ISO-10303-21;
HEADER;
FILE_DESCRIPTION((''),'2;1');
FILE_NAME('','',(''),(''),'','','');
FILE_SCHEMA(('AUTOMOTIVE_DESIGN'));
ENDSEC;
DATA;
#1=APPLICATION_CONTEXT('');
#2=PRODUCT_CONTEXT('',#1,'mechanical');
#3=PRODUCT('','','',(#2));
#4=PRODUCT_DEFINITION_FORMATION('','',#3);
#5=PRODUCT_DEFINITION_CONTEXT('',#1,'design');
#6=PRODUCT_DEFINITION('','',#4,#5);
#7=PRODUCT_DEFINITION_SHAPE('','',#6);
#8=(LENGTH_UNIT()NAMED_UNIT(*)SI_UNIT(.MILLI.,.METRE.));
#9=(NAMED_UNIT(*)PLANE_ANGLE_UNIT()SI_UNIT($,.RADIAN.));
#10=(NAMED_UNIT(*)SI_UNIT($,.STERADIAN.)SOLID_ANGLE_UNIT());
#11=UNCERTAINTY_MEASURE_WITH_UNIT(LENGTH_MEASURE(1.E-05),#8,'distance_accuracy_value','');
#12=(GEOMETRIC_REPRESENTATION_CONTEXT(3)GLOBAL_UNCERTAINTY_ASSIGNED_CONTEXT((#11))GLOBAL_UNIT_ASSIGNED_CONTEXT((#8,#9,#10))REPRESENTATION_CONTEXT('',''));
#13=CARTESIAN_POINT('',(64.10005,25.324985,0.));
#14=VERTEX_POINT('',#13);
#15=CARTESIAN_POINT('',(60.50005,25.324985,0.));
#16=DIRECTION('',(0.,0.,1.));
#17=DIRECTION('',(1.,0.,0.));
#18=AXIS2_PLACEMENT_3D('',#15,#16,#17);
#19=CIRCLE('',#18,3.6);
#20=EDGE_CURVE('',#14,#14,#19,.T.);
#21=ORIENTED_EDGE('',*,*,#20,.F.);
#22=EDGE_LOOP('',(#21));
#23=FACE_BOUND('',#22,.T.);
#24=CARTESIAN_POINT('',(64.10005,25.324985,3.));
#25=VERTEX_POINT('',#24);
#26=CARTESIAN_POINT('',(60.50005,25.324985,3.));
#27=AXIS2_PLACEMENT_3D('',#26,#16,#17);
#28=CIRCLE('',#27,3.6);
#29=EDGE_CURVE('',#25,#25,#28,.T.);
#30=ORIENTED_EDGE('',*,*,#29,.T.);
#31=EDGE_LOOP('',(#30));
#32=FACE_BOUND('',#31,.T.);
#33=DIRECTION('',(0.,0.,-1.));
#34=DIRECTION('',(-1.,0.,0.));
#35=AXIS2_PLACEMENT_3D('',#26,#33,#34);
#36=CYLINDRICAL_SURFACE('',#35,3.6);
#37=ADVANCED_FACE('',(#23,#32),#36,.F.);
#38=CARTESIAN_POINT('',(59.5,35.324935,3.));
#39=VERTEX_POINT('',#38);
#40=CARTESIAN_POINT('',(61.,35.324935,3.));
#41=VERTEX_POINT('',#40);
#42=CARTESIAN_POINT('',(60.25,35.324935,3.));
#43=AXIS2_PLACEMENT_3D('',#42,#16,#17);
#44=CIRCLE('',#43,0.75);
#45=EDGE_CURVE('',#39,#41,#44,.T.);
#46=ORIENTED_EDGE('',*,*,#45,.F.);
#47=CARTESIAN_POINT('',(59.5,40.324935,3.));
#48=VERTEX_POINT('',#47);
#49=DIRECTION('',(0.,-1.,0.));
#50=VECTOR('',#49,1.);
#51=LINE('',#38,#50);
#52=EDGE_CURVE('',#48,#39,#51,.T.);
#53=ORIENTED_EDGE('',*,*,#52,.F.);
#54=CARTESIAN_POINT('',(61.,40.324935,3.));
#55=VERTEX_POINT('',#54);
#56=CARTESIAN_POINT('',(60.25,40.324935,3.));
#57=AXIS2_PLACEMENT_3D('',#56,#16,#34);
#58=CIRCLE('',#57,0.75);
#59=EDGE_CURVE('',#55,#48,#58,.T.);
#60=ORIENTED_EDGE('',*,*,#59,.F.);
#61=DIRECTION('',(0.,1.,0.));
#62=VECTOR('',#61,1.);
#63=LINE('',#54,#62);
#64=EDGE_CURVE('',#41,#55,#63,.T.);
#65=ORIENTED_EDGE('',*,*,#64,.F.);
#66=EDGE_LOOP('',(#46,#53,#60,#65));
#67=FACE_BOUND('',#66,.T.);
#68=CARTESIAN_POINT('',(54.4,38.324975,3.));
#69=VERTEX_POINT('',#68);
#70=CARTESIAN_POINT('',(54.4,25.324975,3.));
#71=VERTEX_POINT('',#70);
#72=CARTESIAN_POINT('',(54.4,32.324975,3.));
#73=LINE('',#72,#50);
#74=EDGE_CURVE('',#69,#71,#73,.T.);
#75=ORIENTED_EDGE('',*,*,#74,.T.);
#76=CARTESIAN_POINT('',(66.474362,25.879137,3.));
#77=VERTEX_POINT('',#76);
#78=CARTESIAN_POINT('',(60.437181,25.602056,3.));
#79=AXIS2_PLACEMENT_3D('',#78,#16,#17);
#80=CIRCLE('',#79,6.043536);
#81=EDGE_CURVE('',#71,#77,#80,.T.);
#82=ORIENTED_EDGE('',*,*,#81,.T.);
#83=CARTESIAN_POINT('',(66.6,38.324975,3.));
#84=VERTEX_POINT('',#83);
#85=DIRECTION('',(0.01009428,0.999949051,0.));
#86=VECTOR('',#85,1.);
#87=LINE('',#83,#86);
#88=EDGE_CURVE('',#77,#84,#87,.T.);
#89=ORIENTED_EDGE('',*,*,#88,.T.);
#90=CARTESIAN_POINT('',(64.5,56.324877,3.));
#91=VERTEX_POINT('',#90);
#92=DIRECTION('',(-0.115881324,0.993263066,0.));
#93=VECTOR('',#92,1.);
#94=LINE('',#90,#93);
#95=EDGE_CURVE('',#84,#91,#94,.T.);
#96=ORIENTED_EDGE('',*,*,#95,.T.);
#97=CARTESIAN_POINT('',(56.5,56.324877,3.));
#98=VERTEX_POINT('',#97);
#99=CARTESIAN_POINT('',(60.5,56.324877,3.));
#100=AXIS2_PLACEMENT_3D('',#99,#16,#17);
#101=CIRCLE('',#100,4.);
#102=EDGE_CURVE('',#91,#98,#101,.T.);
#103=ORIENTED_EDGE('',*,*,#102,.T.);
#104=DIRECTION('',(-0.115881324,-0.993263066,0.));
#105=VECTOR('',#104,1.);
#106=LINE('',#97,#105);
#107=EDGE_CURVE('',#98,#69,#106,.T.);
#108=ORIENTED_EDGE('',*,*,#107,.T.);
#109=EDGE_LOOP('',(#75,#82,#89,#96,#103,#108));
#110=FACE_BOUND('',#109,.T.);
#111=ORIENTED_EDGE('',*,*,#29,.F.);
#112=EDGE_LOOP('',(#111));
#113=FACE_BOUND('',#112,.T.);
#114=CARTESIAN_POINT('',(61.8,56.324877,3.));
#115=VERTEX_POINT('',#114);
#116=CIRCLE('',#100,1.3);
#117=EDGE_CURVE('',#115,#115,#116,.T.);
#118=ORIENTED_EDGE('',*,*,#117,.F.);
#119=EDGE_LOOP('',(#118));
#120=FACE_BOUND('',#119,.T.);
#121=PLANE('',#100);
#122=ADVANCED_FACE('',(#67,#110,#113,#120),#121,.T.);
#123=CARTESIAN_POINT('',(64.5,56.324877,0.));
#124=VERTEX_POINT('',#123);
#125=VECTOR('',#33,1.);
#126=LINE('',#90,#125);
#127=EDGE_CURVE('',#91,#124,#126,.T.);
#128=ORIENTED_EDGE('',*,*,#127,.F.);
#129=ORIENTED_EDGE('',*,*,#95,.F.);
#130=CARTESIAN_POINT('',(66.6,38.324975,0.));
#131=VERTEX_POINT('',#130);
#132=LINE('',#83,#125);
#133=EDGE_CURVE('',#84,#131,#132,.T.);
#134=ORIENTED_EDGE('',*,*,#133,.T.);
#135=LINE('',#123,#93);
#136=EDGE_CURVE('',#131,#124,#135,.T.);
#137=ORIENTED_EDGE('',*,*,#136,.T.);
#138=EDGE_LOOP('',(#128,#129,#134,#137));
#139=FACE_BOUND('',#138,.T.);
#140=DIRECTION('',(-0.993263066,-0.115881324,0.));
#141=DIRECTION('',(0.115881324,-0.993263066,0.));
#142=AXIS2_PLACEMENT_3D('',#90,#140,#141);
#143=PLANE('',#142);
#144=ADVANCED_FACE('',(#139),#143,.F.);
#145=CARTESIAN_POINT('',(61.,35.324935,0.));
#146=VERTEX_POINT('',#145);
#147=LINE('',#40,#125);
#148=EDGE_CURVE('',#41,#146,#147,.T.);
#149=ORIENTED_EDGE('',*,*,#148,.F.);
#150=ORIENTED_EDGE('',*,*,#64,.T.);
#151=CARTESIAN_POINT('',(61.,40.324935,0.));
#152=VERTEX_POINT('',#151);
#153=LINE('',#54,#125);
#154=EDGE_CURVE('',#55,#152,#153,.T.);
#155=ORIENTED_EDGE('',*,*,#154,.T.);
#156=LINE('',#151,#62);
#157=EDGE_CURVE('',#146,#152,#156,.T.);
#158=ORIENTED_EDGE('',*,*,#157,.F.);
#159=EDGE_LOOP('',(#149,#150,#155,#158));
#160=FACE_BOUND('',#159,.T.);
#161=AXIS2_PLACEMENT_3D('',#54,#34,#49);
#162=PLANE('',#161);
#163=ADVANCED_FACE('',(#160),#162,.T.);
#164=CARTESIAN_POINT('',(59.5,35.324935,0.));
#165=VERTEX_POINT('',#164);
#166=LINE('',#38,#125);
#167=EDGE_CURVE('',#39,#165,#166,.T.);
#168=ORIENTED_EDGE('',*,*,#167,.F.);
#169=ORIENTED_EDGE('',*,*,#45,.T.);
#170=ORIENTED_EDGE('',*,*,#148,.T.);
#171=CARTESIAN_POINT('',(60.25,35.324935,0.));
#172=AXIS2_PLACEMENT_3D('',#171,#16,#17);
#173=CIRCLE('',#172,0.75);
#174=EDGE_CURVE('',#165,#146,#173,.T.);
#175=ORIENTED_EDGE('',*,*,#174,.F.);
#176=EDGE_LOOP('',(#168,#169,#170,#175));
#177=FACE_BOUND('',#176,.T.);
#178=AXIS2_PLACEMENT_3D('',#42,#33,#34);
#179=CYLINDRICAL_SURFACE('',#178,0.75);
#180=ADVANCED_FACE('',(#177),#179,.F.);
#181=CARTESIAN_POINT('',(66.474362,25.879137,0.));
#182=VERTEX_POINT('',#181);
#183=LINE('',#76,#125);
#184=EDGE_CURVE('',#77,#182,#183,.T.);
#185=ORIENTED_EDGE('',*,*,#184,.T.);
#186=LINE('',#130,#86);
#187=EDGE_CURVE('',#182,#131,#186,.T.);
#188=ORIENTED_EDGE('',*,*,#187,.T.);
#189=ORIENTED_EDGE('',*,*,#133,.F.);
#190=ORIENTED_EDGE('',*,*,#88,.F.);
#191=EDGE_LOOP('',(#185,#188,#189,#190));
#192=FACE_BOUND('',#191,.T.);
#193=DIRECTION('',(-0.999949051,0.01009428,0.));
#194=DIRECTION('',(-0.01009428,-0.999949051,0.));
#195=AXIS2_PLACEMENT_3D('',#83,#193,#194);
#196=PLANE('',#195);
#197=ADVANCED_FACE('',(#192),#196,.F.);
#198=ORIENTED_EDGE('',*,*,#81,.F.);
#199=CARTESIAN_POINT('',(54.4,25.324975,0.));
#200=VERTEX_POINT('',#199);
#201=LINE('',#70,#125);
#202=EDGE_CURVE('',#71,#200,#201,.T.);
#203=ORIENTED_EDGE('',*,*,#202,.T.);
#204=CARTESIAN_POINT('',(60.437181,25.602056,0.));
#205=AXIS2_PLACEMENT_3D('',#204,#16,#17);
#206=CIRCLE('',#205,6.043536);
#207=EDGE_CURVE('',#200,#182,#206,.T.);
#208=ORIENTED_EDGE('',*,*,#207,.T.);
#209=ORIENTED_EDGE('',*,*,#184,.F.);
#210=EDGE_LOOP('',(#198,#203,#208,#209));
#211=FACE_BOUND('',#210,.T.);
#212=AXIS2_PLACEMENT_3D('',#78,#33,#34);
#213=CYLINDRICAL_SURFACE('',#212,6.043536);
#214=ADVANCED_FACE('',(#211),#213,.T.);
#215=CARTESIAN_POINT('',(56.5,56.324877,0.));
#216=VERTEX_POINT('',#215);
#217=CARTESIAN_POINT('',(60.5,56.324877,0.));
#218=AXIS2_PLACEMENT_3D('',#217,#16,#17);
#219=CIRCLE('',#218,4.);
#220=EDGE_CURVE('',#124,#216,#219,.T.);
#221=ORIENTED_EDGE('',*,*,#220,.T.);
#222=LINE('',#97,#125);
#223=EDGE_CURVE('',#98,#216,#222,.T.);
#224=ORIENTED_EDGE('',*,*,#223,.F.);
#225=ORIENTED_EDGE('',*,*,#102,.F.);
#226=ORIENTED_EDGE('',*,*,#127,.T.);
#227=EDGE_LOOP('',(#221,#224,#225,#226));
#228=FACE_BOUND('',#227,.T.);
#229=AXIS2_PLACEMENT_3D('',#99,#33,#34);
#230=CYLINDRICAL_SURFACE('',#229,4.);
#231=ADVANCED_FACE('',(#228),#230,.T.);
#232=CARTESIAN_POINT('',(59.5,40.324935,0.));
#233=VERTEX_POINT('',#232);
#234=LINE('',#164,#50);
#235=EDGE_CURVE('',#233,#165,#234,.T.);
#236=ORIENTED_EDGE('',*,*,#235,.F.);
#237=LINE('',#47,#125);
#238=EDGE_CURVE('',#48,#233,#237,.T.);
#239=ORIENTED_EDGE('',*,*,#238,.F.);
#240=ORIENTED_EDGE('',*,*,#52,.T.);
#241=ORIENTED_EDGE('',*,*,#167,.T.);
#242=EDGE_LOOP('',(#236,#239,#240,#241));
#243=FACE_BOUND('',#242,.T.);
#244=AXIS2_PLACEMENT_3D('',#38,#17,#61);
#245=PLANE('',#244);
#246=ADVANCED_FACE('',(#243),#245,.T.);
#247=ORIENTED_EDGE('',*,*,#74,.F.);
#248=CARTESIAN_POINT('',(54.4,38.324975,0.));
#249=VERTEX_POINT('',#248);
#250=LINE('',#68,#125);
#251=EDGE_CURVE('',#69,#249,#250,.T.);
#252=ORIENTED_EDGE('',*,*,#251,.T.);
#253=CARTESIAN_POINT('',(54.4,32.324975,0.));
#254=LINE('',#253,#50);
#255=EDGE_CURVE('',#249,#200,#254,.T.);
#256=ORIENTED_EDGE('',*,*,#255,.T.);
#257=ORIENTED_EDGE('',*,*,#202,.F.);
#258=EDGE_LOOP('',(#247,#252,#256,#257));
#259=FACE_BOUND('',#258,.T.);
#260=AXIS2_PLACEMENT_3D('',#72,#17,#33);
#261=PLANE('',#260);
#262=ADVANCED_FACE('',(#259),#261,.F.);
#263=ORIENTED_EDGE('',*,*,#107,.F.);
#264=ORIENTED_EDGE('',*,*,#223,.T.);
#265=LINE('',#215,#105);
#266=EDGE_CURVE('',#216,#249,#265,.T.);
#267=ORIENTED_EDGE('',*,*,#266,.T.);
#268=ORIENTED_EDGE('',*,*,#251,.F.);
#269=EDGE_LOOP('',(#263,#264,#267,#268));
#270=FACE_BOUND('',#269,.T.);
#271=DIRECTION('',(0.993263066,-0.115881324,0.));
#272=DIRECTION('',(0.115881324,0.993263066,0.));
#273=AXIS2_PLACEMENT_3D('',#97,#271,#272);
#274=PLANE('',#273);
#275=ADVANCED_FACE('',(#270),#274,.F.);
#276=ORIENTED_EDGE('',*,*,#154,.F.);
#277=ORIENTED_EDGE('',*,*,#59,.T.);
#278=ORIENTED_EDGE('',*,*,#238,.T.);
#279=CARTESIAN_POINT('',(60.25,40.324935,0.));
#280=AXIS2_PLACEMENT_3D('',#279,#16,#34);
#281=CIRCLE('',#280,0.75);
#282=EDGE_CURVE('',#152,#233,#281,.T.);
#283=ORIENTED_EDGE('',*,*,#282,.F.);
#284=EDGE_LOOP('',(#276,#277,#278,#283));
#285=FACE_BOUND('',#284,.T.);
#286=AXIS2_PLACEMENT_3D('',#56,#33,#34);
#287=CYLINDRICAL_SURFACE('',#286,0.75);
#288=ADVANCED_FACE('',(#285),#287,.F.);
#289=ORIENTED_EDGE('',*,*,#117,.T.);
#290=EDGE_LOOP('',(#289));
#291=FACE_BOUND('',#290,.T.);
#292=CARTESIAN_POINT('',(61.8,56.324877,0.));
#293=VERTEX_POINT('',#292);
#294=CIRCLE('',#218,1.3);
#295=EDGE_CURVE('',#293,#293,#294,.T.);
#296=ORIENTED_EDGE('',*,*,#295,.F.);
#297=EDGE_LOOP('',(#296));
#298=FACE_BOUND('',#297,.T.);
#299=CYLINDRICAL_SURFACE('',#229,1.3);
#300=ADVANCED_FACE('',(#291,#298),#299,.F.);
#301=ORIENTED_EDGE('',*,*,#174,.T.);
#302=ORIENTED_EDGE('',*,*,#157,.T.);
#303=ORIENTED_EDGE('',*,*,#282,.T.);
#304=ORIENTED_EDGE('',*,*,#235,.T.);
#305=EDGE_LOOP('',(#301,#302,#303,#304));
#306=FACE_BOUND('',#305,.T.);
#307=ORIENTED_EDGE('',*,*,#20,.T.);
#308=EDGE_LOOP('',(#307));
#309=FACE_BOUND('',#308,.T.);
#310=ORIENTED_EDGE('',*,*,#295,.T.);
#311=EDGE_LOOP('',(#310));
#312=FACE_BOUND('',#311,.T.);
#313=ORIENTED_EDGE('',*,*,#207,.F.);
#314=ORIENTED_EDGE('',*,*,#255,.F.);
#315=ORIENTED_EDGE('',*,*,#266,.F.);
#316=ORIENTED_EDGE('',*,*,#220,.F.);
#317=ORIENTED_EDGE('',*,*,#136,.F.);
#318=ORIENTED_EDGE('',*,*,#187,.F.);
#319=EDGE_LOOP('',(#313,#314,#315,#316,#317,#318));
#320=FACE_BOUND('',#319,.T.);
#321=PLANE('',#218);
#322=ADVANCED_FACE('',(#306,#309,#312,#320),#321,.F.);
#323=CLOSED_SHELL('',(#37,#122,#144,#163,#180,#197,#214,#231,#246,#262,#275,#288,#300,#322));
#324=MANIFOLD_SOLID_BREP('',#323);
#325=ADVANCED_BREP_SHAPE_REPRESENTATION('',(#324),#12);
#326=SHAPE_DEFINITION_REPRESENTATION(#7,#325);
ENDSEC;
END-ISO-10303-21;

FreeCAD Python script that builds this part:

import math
import FreeCAD as App
import Part
import Sketcher
Q = App.Units.Quantity

doc = App.newDocument("Part")
body = doc.addObject("PartDesign::Body", "Body")

# Sketch on XY plane
sketch1 = doc.addObject("Sketcher::SketchObject", "Sketch")
body.addObject(sketch1)
sketch1.AttachmentSupport = (doc.XY_Plane, [""])
sketch1.MapMode = "FlatFace"
sketch1.addGeometry([
    Part.LineSegment(App.Vector(56.5, 56.3, 0), App.Vector(54.4, 38.3, 0)),  # 0
    Part.LineSegment(App.Vector(54.4, 38.3, 0), App.Vector(54.4, 25.3, 0)),  # 1
    Part.ArcOfCircle(Part.Circle(App.Vector(60.4, 25.6, 0), App.Vector(0, 0, 1), 6), math.radians(-177), math.radians(3)),  # 2
    Part.LineSegment(App.Vector(66.5, 25.9, 0), App.Vector(66.6, 38.3, 0)),  # 3
    Part.LineSegment(App.Vector(66.6, 38.3, 0), App.Vector(64.5, 56.3, 0)),  # 4
    Part.ArcOfCircle(Part.Circle(App.Vector(60.5, 56.3, 0), App.Vector(0, 0, 1), 4), math.radians(0), math.radians(180)),  # 5
    Part.Circle(App.Vector(60.5, 25.3, 0), App.Vector(0, 0, 1), 3.6),  # 6
    Part.LineSegment(App.Vector(59.5, 35.3, 0), App.Vector(59.5, 40.3, 0)),  # 7
    Part.ArcOfCircle(Part.Circle(App.Vector(60.2, 40.3, 0), App.Vector(0, 0, 1), 0.8), math.radians(0), math.radians(180)),  # 8
    Part.LineSegment(App.Vector(61, 40.3, 0), App.Vector(61, 35.3, 0)),  # 9
    Part.ArcOfCircle(Part.Circle(App.Vector(60.2, 35.3, 0), App.Vector(0, 0, 1), 0.8), math.radians(180), math.radians(360)),  # 10
    Part.Circle(App.Vector(60.5, 56.3, 0), App.Vector(0, 0, 1), 1.3),  # 11
], False)
sketch1.addConstraint([
    Sketcher.Constraint("Coincident", 0, 2, 1, 1),
    Sketcher.Constraint("Coincident", 1, 2, 2, 1),
    Sketcher.Constraint("Coincident", 2, 2, 3, 1),
    Sketcher.Constraint("Coincident", 3, 2, 4, 1),
    Sketcher.Constraint("Coincident", 4, 2, 5, 1),
    Sketcher.Constraint("Coincident", 5, 2, 0, 1),
    Sketcher.Constraint("Tangent", 7, 2, 8, 2),
    Sketcher.Constraint("Tangent", 8, 1, 9, 1),
    Sketcher.Constraint("Tangent", 9, 2, 10, 2),
    Sketcher.Constraint("Tangent", 10, 1, 7, 1),
    Sketcher.Constraint("Vertical", 1),
    Sketcher.Constraint("Vertical", 7),
    Sketcher.Constraint("Vertical", 9),
    Sketcher.Constraint("Coincident", 11, 3, 5, 3),
    Sketcher.Constraint("Horizontal", 0, 2, 3, 2),
    Sketcher.Constraint("Horizontal", 11, 3, 4, 2),
    Sketcher.Constraint("Horizontal", 4, 2, 5, 2),
    Sketcher.Constraint("Equal", 0, 4),
    Sketcher.Constraint("Radius", 5, Q("4 mm")),
    Sketcher.Constraint("Diameter", 6, Q("7.2 mm")),
    Sketcher.Constraint("Diameter", 11, Q("2.6 mm")),
    Sketcher.Constraint("DistanceY", 1, 2, 1, 1, Q("13 mm")),
    Sketcher.Constraint("DistanceY", 7, 1, 7, 2, Q("5 mm")),
    Sketcher.Constraint("Radius", 8, Q("0.75 mm")),
    Sketcher.Constraint("DistanceX", -1, 1, 8, 1, Q("61 mm")),
    Sketcher.Constraint("DistanceX", -1, 1, 5, 3, Q("60.5 mm")),
    Sketcher.Constraint("DistanceX", -1, 1, 0, 2, Q("54.4 mm")),
    Sketcher.Constraint("Radius", 2, Q("6.043536 mm")),
    Sketcher.Constraint("DistanceY", 0, 2, 5, 3, Q("17.999902 mm")),
    Sketcher.Constraint("Distance", 3, Q("12.446472 mm")),
    Sketcher.Constraint("DistanceX", -1, 1, 2, 3, Q("60.437181 mm")),
    Sketcher.Constraint("DistanceX", -1, 1, 6, 3, Q("60.50005 mm")),
    Sketcher.Constraint("DistanceY", 6, 3, 2, 3, Q("0.277071 mm")),
    Sketcher.Constraint("DistanceY", 2, 3, 8, 3, Q("14.722879 mm")),
    Sketcher.Constraint("DistanceY", -1, 1, 2, 3, Q("25.602056 mm")),
])
pad1 = doc.addObject("PartDesign::Pad", "Pad")
body.addObject(pad1)
pad1.Profile = sketch1
pad1.Length = 3

doc.recompute()
